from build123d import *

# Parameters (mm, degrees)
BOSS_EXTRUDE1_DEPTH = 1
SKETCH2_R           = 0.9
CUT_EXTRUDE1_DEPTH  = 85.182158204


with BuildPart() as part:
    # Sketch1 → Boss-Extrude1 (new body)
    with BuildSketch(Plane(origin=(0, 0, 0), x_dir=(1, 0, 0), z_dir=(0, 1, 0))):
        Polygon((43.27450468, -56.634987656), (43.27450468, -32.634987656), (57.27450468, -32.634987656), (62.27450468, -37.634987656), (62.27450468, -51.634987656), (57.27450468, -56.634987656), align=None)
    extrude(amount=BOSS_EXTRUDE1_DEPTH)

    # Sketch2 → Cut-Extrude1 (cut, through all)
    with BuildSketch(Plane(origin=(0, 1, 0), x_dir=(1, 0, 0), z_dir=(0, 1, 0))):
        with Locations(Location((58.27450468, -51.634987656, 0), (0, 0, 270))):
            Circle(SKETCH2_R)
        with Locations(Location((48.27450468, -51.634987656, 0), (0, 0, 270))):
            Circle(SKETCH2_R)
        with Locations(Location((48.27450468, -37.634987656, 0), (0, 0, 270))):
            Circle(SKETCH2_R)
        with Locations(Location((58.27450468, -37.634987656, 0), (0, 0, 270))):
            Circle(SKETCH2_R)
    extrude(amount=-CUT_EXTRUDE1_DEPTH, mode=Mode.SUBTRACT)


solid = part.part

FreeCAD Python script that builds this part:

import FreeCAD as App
import Part
import Sketcher

V = App.Vector
Q = App.Units.Quantity


def add_polygon(sketch, points):
    """Adds a closed chain of lines whose ends are joined by coincident constraints."""
    first, n = sketch.GeometryCount, len(points)
    for a, b in zip(points, points[1:] + points[:1]):
        sketch.addGeometry(Part.LineSegment(App.Vector(*a, 0), App.Vector(*b, 0)), False)
    for i in range(n):
        sketch.addConstraint(Sketcher.Constraint("Coincident", first + i, 2, first + (i + 1) % n, 1))

doc = App.newDocument("Part")
body = doc.addObject("PartDesign::Body", "Body")

sketch1 = body.newObject("Sketcher::SketchObject", "Sketch")
sketch1.AttachmentSupport = (doc.getObject("XZ_Plane"), [""])
sketch1.MapMode = "FlatFace"
add_polygon(sketch1, [(43, 33), (43, 57), (57, 57), (62, 52), (62, 38), (57, 33)])
sketch1.addConstraint([
    Sketcher.Constraint("Vertical", 0),
    Sketcher.Constraint("Horizontal", 1),
    Sketcher.Constraint("Vertical", 3),
    Sketcher.Constraint("Horizontal", 5),
    Sketcher.Constraint("Perpendicular", 2, 4),
    Sketcher.Constraint("Vertical", 1, 2, 4, 2),
    Sketcher.Constraint("Equal", 5, 3),
    Sketcher.Constraint("Equal", 2, 4),
    Sketcher.Constraint("DistanceX", 1, 1, 1, 2, Q("14 mm")),
    Sketcher.Constraint("DistanceY", 0, 1, 0, 2, Q("24 mm")),
    Sketcher.Constraint("DistanceX", -1, 1, 0, 2, Q("43.274505 mm")),
    Sketcher.Constraint("DistanceY", -1, 1, 0, 2, Q("56.634988 mm")),
])
pad1 = body.newObject("PartDesign::Pad", "Pad")
pad1.Profile = sketch1
pad1.Length = 1
pad1.Reversed = True

sketch2 = body.newObject("Sketcher::SketchObject", "Sketch001")
sketch2.AttachmentSupport = (doc.getObject("XZ_Plane"), [""])
sketch2.MapMode = "FlatFace"
sketch2.AttachmentOffset = App.Placement(V(0, 0, -1), App.Rotation())
sketch2.addGeometry([
    Part.Circle(V(58.3, 51.6, 0), V(0, 0, 1), 0.9),
    Part.Circle(V(48.3, 51.6, 0), V(0, 0, 1), 0.9),
    Part.Circle(V(48.3, 37.6, 0), V(0, 0, 1), 0.9),
    Part.Circle(V(58.3, 37.6, 0), V(0, 0, 1), 0.9),
], False)
sketch2.addConstraint([
    Sketcher.Constraint("Equal", 0, 1),
    Sketcher.Constraint("Equal", 1, 2),
    Sketcher.Constraint("Equal", 2, 3),
    Sketcher.Constraint("Horizontal", 0, 3, 1, 3),
    Sketcher.Constraint("Horizontal", 2, 3, 3, 3),
    Sketcher.Constraint("Vertical", 1, 3, 2, 3),
    Sketcher.Constraint("Vertical", 0, 3, 3, 3),
    Sketcher.Constraint("Diameter", 0, Q("1.8 mm")),
    Sketcher.Constraint("DistanceX", 1, 3, 0, 3, Q("10 mm")),
    Sketcher.Constraint("DistanceY", 2, 3, 1, 3, Q("14 mm")),
    Sketcher.Constraint("DistanceX", -1, 1, 0, 3, Q("58.274505 mm")),
    Sketcher.Constraint("DistanceY", -1, 1, 0, 3, Q("51.634988 mm")),
])
pocket1 = body.newObject("PartDesign::Pocket", "Pocket")
pocket1.Profile = sketch2
pocket1.Type = "ThroughAll"
pocket1.Reversed = True

doc.recompute()
